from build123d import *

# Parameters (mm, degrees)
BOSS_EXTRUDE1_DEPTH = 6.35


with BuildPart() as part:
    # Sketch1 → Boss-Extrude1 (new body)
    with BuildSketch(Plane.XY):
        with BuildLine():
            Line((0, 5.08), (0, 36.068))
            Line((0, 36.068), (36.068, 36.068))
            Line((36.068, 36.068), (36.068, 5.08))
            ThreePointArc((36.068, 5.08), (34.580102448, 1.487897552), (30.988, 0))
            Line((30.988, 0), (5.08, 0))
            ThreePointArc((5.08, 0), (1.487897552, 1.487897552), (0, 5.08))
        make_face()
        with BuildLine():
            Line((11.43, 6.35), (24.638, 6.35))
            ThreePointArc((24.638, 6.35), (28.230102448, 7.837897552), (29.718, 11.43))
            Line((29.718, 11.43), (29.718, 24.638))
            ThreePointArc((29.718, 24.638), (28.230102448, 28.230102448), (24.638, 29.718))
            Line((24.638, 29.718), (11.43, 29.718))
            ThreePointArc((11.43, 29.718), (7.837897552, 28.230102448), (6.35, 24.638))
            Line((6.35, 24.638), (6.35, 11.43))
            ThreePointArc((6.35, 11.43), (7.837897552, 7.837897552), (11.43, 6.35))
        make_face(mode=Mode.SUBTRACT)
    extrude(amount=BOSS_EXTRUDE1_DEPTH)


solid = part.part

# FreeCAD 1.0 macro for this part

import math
import FreeCAD as App
import Part
import Sketcher
Q = App.Units.Quantity

doc = App.newDocument("Part")
params = doc.addObject("Spreadsheet::Sheet", "Params")
for row, (alias, value) in enumerate([
    ("sketch1_radius", "0.2 in"),
    ("sketch1_width", "1.02 in"),
    ("sketch1_width2", "0.52 in"),
    ("sketch1_height", "1.22 in"),
    ("pad1_length", "0.25 in"),
], start=1):
    params.set(f"A{row}", alias)
    params.set(f"B{row}", "=" + value)
    params.setAlias(f"B{row}", alias)

body = doc.addObject("PartDesign::Body", "Body")

sketch1 = body.newObject("Sketcher::SketchObject", "Sketch")
sketch1.AttachmentSupport = (doc.getObject("XY_Plane"), [""])
sketch1.MapMode = "FlatFace"
sketch1.addGeometry(Part.LineSegment(App.Vector(0, 36, 0), App.Vector(0, 5, 0)), False)
sketch1.addGeometry(Part.ArcOfCircle(Part.Circle(App.Vector(5, 5, 0), App.Vector(0, 0, 1), 5), math.radians(-180), math.radians(-90)), False)
sketch1.addGeometry(Part.LineSegment(App.Vector(5, 0, 0), App.Vector(31, 0, 0)), False)
sketch1.addGeometry(Part.ArcOfCircle(Part.Circle(App.Vector(31, 5, 0), App.Vector(0, 0, 1), 5), math.radians(-90), math.radians(0)), False)
sketch1.addGeometry(Part.LineSegment(App.Vector(36, 5, 0), App.Vector(36, 36, 0)), False)
sketch1.addGeometry(Part.LineSegment(App.Vector(36, 36, 0), App.Vector(0, 36, 0)), False)
sketch1.addGeometry(Part.ArcOfCircle(Part.Circle(App.Vector(11, 11, 0), App.Vector(0, 0, 1), 5), math.radians(-180), math.radians(-90)), False)
sketch1.addGeometry(Part.LineSegment(App.Vector(6, 11, 0), App.Vector(6, 25, 0)), False)
sketch1.addGeometry(Part.ArcOfCircle(Part.Circle(App.Vector(11, 25, 0), App.Vector(0, 0, 1), 5), math.radians(90), math.radians(180)), False)
sketch1.addGeometry(Part.LineSegment(App.Vector(11, 30, 0), App.Vector(25, 30, 0)), False)
sketch1.addGeometry(Part.ArcOfCircle(Part.Circle(App.Vector(25, 25, 0), App.Vector(0, 0, 1), 5), math.radians(0), math.radians(90)), False)
sketch1.addGeometry(Part.LineSegment(App.Vector(30, 25, 0), App.Vector(30, 11, 0)), False)
sketch1.addGeometry(Part.ArcOfCircle(Part.Circle(App.Vector(25, 11, 0), App.Vector(0, 0, 1), 5), math.radians(-90), math.radians(0)), False)
sketch1.addGeometry(Part.LineSegment(App.Vector(25, 6, 0), App.Vector(11, 6, 0)), False)
sketch1.addConstraint(Sketcher.Constraint("Tangent", 0, 2, 1, 1))
sketch1.addConstraint(Sketcher.Constraint("Tangent", 1, 2, 2, 1))
sketch1.addConstraint(Sketcher.Constraint("Tangent", 2, 2, 3, 1))
sketch1.addConstraint(Sketcher.Constraint("Tangent", 3, 2, 4, 1))
sketch1.addConstraint(Sketcher.Constraint("Coincident", 4, 2, 5, 1))
sketch1.addConstraint(Sketcher.Constraint("Coincident", 5, 2, 0, 1))
sketch1.addConstraint(Sketcher.Constraint("Tangent", 6, 1, 7, 1))
sketch1.addConstraint(Sketcher.Constraint("Tangent", 7, 2, 8, 2))
sketch1.addConstraint(Sketcher.Constraint("Tangent", 8, 1, 9, 1))
sketch1.addConstraint(Sketcher.Constraint("Tangent", 9, 2, 10, 2))
sketch1.addConstraint(Sketcher.Constraint("Tangent", 10, 1, 11, 1))
sketch1.addConstraint(Sketcher.Constraint("Tangent", 11, 2, 12, 2))
sketch1.addConstraint(Sketcher.Constraint("Tangent", 12, 1, 13, 1))
sketch1.addConstraint(Sketcher.Constraint("Tangent", 13, 2, 6, 2))
sketch1.addConstraint(Sketcher.Constraint("Vertical", 0))
sketch1.addConstraint(Sketcher.Constraint("Horizontal", 2))
sketch1.addConstraint(Sketcher.Constraint("Vertical", 4))
sketch1.addConstraint(Sketcher.Constraint("Horizontal", 5))
sketch1.addConstraint(Sketcher.Constraint("Vertical", 7))
sketch1.addConstraint(Sketcher.Constraint("Horizontal", 9))
sketch1.addConstraint(Sketcher.Constraint("Vertical", 11))
sketch1.addConstraint(Sketcher.Constraint("Horizontal", 13))
sketch1.addConstraint(Sketcher.Constraint("Equal", 1, 3))
sketch1.addConstraint(Sketcher.Constraint("Equal", 3, 6))
sketch1.addConstraint(Sketcher.Constraint("Equal", 6, 8))
sketch1.addConstraint(Sketcher.Constraint("Equal", 8, 10))
sketch1.addConstraint(Sketcher.Constraint("Equal", 10, 12))
sketch1.addConstraint(Sketcher.Constraint("PointOnObject", 0, 2, -2))
sketch1.addConstraint(Sketcher.Constraint("PointOnObject", 1, 2, -1))
sketch1.addConstraint(Sketcher.Constraint("Equal", 13, 7))
sketch1.addConstraint(Sketcher.Constraint("Radius", 1, Q("0.2 in")))
sketch1.addConstraint(Sketcher.Constraint("DistanceX", 2, 1, 2, 2, Q("1.02 in")))
sketch1.addConstraint(Sketcher.Constraint("DistanceX", 9, 1, 9, 2, Q("0.52 in")))
sketch1.addConstraint(Sketcher.Constraint("DistanceY", 0, 2, 0, 1, Q("1.22 in")))
sketch1.addConstraint(Sketcher.Constraint("DistanceX", -1, 1, 6, 3, Q("0.45 in")))
sketch1.addConstraint(Sketcher.Constraint("DistanceY", -1, 1, 6, 3, Q("0.45 in")))
sketch1.setExpression("Constraints[30]", "Params.sketch1_radius")
sketch1.setExpression("Constraints[31]", "Params.sketch1_width")
sketch1.setExpression("Constraints[32]", "Params.sketch1_width2")
sketch1.setExpression("Constraints[33]", "Params.sketch1_height")
pad1 = body.newObject("PartDesign::Pad", "Pad")
pad1.Profile = sketch1
pad1.setExpression("Length", "Params.pad1_length")

doc.recompute()
